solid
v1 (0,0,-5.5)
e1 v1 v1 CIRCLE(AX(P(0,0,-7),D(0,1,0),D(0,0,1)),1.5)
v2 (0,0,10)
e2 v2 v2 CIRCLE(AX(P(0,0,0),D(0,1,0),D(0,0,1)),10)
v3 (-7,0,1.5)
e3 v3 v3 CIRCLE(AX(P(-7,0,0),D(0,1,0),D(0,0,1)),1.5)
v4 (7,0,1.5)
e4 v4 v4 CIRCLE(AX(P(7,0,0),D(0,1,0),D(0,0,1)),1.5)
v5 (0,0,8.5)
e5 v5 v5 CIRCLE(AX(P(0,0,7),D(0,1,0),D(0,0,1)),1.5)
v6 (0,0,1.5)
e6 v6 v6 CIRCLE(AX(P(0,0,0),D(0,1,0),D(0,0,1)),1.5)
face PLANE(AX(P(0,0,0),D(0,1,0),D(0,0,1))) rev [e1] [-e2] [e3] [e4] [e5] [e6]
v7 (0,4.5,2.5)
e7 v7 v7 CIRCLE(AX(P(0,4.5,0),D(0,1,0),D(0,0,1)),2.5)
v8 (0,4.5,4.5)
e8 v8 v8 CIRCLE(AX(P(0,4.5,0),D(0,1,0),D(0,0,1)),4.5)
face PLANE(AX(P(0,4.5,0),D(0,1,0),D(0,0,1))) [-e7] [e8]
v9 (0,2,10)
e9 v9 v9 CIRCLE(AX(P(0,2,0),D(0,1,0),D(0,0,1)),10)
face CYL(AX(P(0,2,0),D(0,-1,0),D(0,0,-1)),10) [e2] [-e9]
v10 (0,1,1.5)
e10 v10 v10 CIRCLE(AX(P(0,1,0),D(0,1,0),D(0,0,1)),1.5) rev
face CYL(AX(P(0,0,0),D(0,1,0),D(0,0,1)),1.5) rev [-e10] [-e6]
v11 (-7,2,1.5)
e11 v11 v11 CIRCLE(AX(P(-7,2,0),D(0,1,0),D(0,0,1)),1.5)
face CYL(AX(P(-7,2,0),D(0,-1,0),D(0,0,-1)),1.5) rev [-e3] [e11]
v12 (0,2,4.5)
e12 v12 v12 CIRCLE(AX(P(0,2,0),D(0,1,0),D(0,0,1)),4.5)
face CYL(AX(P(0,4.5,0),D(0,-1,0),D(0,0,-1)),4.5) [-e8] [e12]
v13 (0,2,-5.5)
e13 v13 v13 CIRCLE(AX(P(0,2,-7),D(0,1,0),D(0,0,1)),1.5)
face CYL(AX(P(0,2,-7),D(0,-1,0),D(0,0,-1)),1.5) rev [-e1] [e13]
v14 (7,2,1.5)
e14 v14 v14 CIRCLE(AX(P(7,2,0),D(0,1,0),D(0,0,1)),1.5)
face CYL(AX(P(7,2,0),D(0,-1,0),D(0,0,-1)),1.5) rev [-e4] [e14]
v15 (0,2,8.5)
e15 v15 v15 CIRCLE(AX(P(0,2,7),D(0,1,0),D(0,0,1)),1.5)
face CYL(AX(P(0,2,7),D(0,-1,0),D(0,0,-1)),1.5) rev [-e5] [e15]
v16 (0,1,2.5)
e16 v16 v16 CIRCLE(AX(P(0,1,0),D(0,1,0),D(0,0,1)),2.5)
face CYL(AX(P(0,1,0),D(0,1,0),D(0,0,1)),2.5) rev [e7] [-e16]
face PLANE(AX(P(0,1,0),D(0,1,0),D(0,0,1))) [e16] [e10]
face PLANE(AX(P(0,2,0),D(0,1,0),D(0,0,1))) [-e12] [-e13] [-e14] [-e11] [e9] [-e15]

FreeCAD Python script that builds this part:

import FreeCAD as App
import Part
import Sketcher

V = App.Vector

doc = App.newDocument("Part")
body = doc.addObject("PartDesign::Body", "Body")

sketch1 = body.newObject("Sketcher::SketchObject", "Sketch")
sketch1.AttachmentSupport = (doc.getObject("XZ_Plane"), [""])
sketch1.MapMode = "FlatFace"
sketch1.addGeometry([
    Part.Circle(V(0, 0, 0), V(0, 0, 1), 10),
    Part.Circle(V(0, -7, 0), V(0, 0, 1), 1.5),
    Part.Circle(V(-7, 0, 0), V(0, 0, 1), 1.5),
    Part.Circle(V(7, 0, 0), V(0, 0, 1), 1.5),
    Part.Circle(V(0, 7, 0), V(0, 0, 1), 1.5),
], False)
sketch1.addConstraint([
    Sketcher.Constraint("Coincident", 0, 3, -1, 1),
    Sketcher.Constraint("Equal", 1, 2),
    Sketcher.Constraint("Equal", 2, 3),
    Sketcher.Constraint("Equal", 3, 4),
    Sketcher.Constraint("Symmetric", 2, 3, 3, 3, -1, 1),
    Sketcher.Constraint("Symmetric", 1, 3, 4, 3, -1, 1),
    Sketcher.Constraint("PointOnObject", 1, 3, -2),
    Sketcher.Constraint("PointOnObject", 2, 3, -1),
    Sketcher.Constraint("Diameter", 0, 20.0),
    Sketcher.Constraint("Diameter", 1, 3.0),
    Sketcher.Constraint("DistanceY", 1, 3, -1, 1, 7.0),
    Sketcher.Constraint("DistanceX", 2, 3, -1, 1, 7.0),
])
pad1 = body.newObject("PartDesign::Pad", "Pad")
pad1.Profile = sketch1
pad1.Length = 2
pad1.Reversed = True

sketch2 = body.newObject("Sketcher::SketchObject", "Sketch001")
sketch2.AttachmentSupport = (doc.getObject("XZ_Plane"), [""])
sketch2.MapMode = "FlatFace"
sketch2.AttachmentOffset = App.Placement(V(0, 0, -2), App.Rotation())
sketch2.addGeometry(Part.Circle(V(0, 0, 0), V(0, 0, 1), 4.5), False)
sketch2.addConstraint([
    Sketcher.Constraint("Coincident", 0, 3, -1, 1),
    Sketcher.Constraint("Diameter", 0, 9.0),
])
pad2 = body.newObject("PartDesign::Pad", "Pad001")
pad2.Profile = sketch2
pad2.Length = 2.5
pad2.Reversed = True

sketch3 = body.newObject("Sketcher::SketchObject", "Sketch002")
sketch3.AttachmentSupport = (doc.getObject("XZ_Plane"), [""])
sketch3.MapMode = "FlatFace"
sketch3.AttachmentOffset = App.Placement(V(0, 0, -4.5), App.Rotation())
sketch3.addGeometry(Part.Circle(V(0, 0, 0), V(0, 0, 1), 1.5), False)
sketch3.addConstraint([
    Sketcher.Constraint("Coincident", 0, 3, -1, 1),
    Sketcher.Constraint("Diameter", 0, 3.0),
])
pocket1 = body.newObject("PartDesign::Pocket", "Pocket")
pocket1.Profile = sketch3
pocket1.Type = "ThroughAll"
pocket1.Reversed = True

sketch4 = body.newObject("Sketcher::SketchObject", "Sketch003")
sketch4.AttachmentSupport = (doc.getObject("XZ_Plane"), [""])
sketch4.MapMode = "FlatFace"
sketch4.AttachmentOffset = App.Placement(V(0, 0, -4.5), App.Rotation())
sketch4.addGeometry(Part.Circle(V(0, 0, 0), V(0, 0, 1), 2.5), False)
sketch4.addConstraint([
    Sketcher.Constraint("Coincident", 0, 3, -1, 1),
    Sketcher.Constraint("Diameter", 0, 5.0),
])
pocket2 = body.newObject("PartDesign::Pocket", "Pocket001")
pocket2.Profile = sketch4
pocket2.Length = 3.5
pocket2.Reversed = True

doc.recompute()
